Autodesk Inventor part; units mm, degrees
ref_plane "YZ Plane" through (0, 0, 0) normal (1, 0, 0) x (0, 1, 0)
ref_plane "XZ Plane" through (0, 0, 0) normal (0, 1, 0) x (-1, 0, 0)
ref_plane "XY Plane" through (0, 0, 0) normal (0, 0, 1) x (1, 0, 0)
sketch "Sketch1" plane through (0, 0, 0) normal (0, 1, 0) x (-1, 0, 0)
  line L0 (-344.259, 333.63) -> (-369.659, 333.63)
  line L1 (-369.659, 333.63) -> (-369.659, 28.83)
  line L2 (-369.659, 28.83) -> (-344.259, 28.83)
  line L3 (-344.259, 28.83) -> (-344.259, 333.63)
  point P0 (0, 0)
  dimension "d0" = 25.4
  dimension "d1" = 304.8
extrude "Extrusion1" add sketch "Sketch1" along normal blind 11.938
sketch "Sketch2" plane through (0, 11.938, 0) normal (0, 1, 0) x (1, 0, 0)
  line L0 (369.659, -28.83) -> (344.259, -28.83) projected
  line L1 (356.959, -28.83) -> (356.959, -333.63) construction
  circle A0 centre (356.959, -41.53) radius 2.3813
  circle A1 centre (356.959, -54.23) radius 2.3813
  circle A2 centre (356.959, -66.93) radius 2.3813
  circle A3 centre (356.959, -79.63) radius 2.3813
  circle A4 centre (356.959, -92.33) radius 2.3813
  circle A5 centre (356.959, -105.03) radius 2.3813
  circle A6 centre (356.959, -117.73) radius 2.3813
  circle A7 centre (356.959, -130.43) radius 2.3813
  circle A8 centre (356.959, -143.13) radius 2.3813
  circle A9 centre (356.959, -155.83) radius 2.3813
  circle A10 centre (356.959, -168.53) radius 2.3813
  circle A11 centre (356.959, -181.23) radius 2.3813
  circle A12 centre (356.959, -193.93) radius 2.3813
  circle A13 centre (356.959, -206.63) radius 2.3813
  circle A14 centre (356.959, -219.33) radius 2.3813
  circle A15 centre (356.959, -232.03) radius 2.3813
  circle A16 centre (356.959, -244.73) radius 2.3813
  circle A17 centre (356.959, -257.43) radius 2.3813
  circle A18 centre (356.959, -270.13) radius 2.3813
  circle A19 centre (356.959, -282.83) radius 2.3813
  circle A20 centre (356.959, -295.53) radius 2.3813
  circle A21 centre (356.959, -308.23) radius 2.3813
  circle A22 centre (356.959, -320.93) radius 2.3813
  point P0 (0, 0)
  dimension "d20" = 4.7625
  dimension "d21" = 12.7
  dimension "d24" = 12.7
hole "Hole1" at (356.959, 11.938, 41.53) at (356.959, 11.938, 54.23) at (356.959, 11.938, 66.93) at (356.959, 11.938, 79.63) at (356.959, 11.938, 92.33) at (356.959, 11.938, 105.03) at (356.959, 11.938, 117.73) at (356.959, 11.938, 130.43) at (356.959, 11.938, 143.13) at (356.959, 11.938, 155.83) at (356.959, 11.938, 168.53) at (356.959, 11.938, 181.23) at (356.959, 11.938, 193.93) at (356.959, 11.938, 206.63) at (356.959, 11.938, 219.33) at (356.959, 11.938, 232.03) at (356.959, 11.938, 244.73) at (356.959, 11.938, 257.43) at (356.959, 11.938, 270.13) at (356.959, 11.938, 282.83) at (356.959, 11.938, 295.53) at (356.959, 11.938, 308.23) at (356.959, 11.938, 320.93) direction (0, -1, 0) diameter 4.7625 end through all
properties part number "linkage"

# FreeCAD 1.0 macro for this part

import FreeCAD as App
import Part
import Sketcher

V = App.Vector
Q = App.Units.Quantity


def add_polygon(sketch, points):
    """Adds a closed chain of lines whose ends are joined by coincident constraints."""
    first, n = sketch.GeometryCount, len(points)
    for a, b in zip(points, points[1:] + points[:1]):
        sketch.addGeometry(Part.LineSegment(App.Vector(*a, 0), App.Vector(*b, 0)), False)
    for i in range(n):
        sketch.addConstraint(Sketcher.Constraint("Coincident", first + i, 2, first + (i + 1) % n, 1))

doc = App.newDocument("Part")
body = doc.addObject("PartDesign::Body", "Body")

# Sketch on XZ plane
sketch1 = body.newObject("Sketcher::SketchObject", "Sketch")
sketch1.AttachmentSupport = (doc.getObject("XZ_Plane"), [""])
sketch1.MapMode = "FlatFace"
add_polygon(sketch1, [(344, 29), (344, 334), (370, 334), (370, 29)])  # lines 0-3
sketch1.addConstraint(Sketcher.Constraint("Vertical", 0))
sketch1.addConstraint(Sketcher.Constraint("Horizontal", 1))
sketch1.addConstraint(Sketcher.Constraint("Vertical", 2))
sketch1.addConstraint(Sketcher.Constraint("Horizontal", 3))
sketch1.addConstraint(Sketcher.Constraint("DistanceX", 1, 1, 1, 2, Q("1 in")))
sketch1.addConstraint(Sketcher.Constraint("DistanceY", 0, 1, 0, 2, Q("12 in")))
sketch1.addConstraint(Sketcher.Constraint("DistanceX", -1, 1, 0, 2, Q("13.5535 in")))
sketch1.addConstraint(Sketcher.Constraint("DistanceY", -1, 1, 0, 2, Q("333.63 mm")))
pad1 = body.newObject("PartDesign::Pad", "Pad")
pad1.Profile = sketch1
pad1.Length = Q("0.47 in")
pad1.Reversed = True

# Sketch on XZ plane
sketch2 = body.newObject("Sketcher::SketchObject", "Sketch001")
sketch2.AttachmentSupport = (doc.getObject("XZ_Plane"), [""])
sketch2.MapMode = "FlatFace"
sketch2.AttachmentOffset = App.Placement(V(0, 0, -0.47 * 25.4), App.Rotation())
sketch2.addGeometry(Part.Circle(V(357, 41.5, 0), V(0, 0, 1), 2.4), False)
sketch2.addGeometry(Part.Circle(V(357, 54.2, 0), V(0, 0, 1), 2.4), False)
sketch2.addGeometry(Part.Circle(V(357, 66.9, 0), V(0, 0, 1), 2.4), False)
sketch2.addGeometry(Part.Circle(V(357, 79.6, 0), V(0, 0, 1), 2.4), False)
sketch2.addGeometry(Part.Circle(V(357, 92.3, 0), V(0, 0, 1), 2.4), False)
sketch2.addGeometry(Part.Circle(V(357, 105, 0), V(0, 0, 1), 2.4), False)
sketch2.addGeometry(Part.Circle(V(357, 117.7, 0), V(0, 0, 1), 2.4), False)
sketch2.addGeometry(Part.Circle(V(357, 130.4, 0), V(0, 0, 1), 2.4), False)
sketch2.addGeometry(Part.Circle(V(357, 143.1, 0), V(0, 0, 1), 2.4), False)
sketch2.addGeometry(Part.Circle(V(357, 155.8, 0), V(0, 0, 1), 2.4), False)
sketch2.addGeometry(Part.Circle(V(357, 168.5, 0), V(0, 0, 1), 2.4), False)
sketch2.addGeometry(Part.Circle(V(357, 181.2, 0), V(0, 0, 1), 2.4), False)
sketch2.addGeometry(Part.Circle(V(357, 193.9, 0), V(0, 0, 1), 2.4), False)
sketch2.addGeometry(Part.Circle(V(357, 206.6, 0), V(0, 0, 1), 2.4), False)
sketch2.addGeometry(Part.Circle(V(357, 219.3, 0), V(0, 0, 1), 2.4), False)
sketch2.addGeometry(Part.Circle(V(357, 232, 0), V(0, 0, 1), 2.4), False)
sketch2.addGeometry(Part.Circle(V(357, 244.7, 0), V(0, 0, 1), 2.4), False)
sketch2.addGeometry(Part.Circle(V(357, 257.4, 0), V(0, 0, 1), 2.4), False)
sketch2.addGeometry(Part.Circle(V(357, 270.1, 0), V(0, 0, 1), 2.4), False)
sketch2.addGeometry(Part.Circle(V(357, 282.8, 0), V(0, 0, 1), 2.4), False)
sketch2.addGeometry(Part.Circle(V(357, 295.5, 0), V(0, 0, 1), 2.4), False)
sketch2.addGeometry(Part.Circle(V(357, 308.2, 0), V(0, 0, 1), 2.4), False)
sketch2.addGeometry(Part.Circle(V(357, 320.9, 0), V(0, 0, 1), 2.4), False)
sketch2.addConstraint(Sketcher.Constraint("Equal", 0, 1))
sketch2.addConstraint(Sketcher.Constraint("Equal", 1, 2))
sketch2.addConstraint(Sketcher.Constraint("Equal", 2, 3))
sketch2.addConstraint(Sketcher.Constraint("Equal", 3, 4))
sketch2.addConstraint(Sketcher.Constraint("Equal", 4, 5))
sketch2.addConstraint(Sketcher.Constraint("Equal", 5, 6))
sketch2.addConstraint(Sketcher.Constraint("Equal", 6, 7))
sketch2.addConstraint(Sketcher.Constraint("Equal", 7, 8))
sketch2.addConstraint(Sketcher.Constraint("Equal", 8, 9))
sketch2.addConstraint(Sketcher.Constraint("Equal", 9, 10))
sketch2.addConstraint(Sketcher.Constraint("Equal", 10, 11))
sketch2.addConstraint(Sketcher.Constraint("Equal", 11, 12))
sketch2.addConstraint(Sketcher.Constraint("Equal", 12, 13))
sketch2.addConstraint(Sketcher.Constraint("Equal", 13, 14))
sketch2.addConstraint(Sketcher.Constraint("Equal", 14, 15))
sketch2.addConstraint(Sketcher.Constraint("Equal", 15, 16))
sketch2.addConstraint(Sketcher.Constraint("Equal", 16, 17))
sketch2.addConstraint(Sketcher.Constraint("Equal", 17, 18))
sketch2.addConstraint(Sketcher.Constraint("Equal", 18, 19))
sketch2.addConstraint(Sketcher.Constraint("Equal", 19, 20))
sketch2.addConstraint(Sketcher.Constraint("Equal", 20, 21))
sketch2.addConstraint(Sketcher.Constraint("Equal", 21, 22))
sketch2.addConstraint(Sketcher.Constraint("Vertical", 0, 3, 1, 3))
sketch2.addConstraint(Sketcher.Constraint("Vertical", 1, 3, 2, 3))
sketch2.addConstraint(Sketcher.Constraint("Vertical", 2, 3, 3, 3))
sketch2.addConstraint(Sketcher.Constraint("Vertical", 3, 3, 4, 3))
sketch2.addConstraint(Sketcher.Constraint("Vertical", 4, 3, 5, 3))
sketch2.addConstraint(Sketcher.Constraint("Vertical", 5, 3, 6, 3))
sketch2.addConstraint(Sketcher.Constraint("Vertical", 6, 3, 7, 3))
sketch2.addConstraint(Sketcher.Constraint("Vertical", 7, 3, 8, 3))
sketch2.addConstraint(Sketcher.Constraint("Vertical", 8, 3, 9, 3))
sketch2.addConstraint(Sketcher.Constraint("Vertical", 9, 3, 10, 3))
sketch2.addConstraint(Sketcher.Constraint("Vertical", 10, 3, 11, 3))
sketch2.addConstraint(Sketcher.Constraint("Vertical", 11, 3, 12, 3))
sketch2.addConstraint(Sketcher.Constraint("Vertical", 12, 3, 13, 3))
sketch2.addConstraint(Sketcher.Constraint("Vertical", 13, 3, 14, 3))
sketch2.addConstraint(Sketcher.Constraint("Vertical", 14, 3, 15, 3))
sketch2.addConstraint(Sketcher.Constraint("Vertical", 15, 3, 16, 3))
sketch2.addConstraint(Sketcher.Constraint("Vertical", 16, 3, 17, 3))
sketch2.addConstraint(Sketcher.Constraint("Vertical", 17, 3, 18, 3))
sketch2.addConstraint(Sketcher.Constraint("Vertical", 18, 3, 19, 3))
sketch2.addConstraint(Sketcher.Constraint("Vertical", 19, 3, 20, 3))
sketch2.addConstraint(Sketcher.Constraint("Vertical", 20, 3, 21, 3))
sketch2.addConstraint(Sketcher.Constraint("Vertical", 21, 3, 22, 3))
sketch2.addConstraint(Sketcher.Constraint("Diameter", 0, Q("0.1875 in")))
sketch2.addConstraint(Sketcher.Constraint("DistanceY", 0, 3, 2, 3, Q("1 in")))
sketch2.addConstraint(Sketcher.Constraint("DistanceY", 1, 3, 3, 3, Q("1 in")))
sketch2.addConstraint(Sketcher.Constraint("DistanceY", 2, 3, 4, 3, Q("1 in")))
sketch2.addConstraint(Sketcher.Constraint("DistanceY", 3, 3, 5, 3, Q("1 in")))
sketch2.addConstraint(Sketcher.Constraint("DistanceY", 4, 3, 6, 3, Q("1 in")))
sketch2.addConstraint(Sketcher.Constraint("DistanceY", 5, 3, 7, 3, Q("1 in")))
sketch2.addConstraint(Sketcher.Constraint("DistanceY", 6, 3, 8, 3, Q("1 in")))
sketch2.addConstraint(Sketcher.Constraint("DistanceY", 7, 3, 9, 3, Q("1 in")))
sketch2.addConstraint(Sketcher.Constraint("DistanceY", 8, 3, 10, 3, Q("1 in")))
sketch2.addConstraint(Sketcher.Constraint("DistanceY", 9, 3, 11, 3, Q("1 in")))
sketch2.addConstraint(Sketcher.Constraint("DistanceY", 10, 3, 12, 3, Q("1 in")))
sketch2.addConstraint(Sketcher.Constraint("DistanceY", 11, 3, 13, 3, Q("1 in")))
sketch2.addConstraint(Sketcher.Constraint("DistanceY", 12, 3, 14, 3, Q("1 in")))
sketch2.addConstraint(Sketcher.Constraint("DistanceY", 13, 3, 15, 3, Q("1 in")))
sketch2.addConstraint(Sketcher.Constraint("DistanceY", 14, 3, 16, 3, Q("1 in")))
sketch2.addConstraint(Sketcher.Constraint("DistanceY", 15, 3, 17, 3, Q("1 in")))
sketch2.addConstraint(Sketcher.Constraint("DistanceY", 16, 3, 18, 3, Q("1 in")))
sketch2.addConstraint(Sketcher.Constraint("DistanceY", 17, 3, 19, 3, Q("1 in")))
sketch2.addConstraint(Sketcher.Constraint("DistanceY", 18, 3, 20, 3, Q("1 in")))
sketch2.addConstraint(Sketcher.Constraint("DistanceY", 19, 3, 21, 3, Q("1 in")))
sketch2.addConstraint(Sketcher.Constraint("DistanceY", 20, 3, 22, 3, Q("1 in")))
sketch2.addConstraint(Sketcher.Constraint("DistanceY", 0, 3, 1, 3, Q("0.5 in")))
sketch2.addConstraint(Sketcher.Constraint("DistanceX", -1, 1, 0, 3, Q("14.0535 in")))
sketch2.addConstraint(Sketcher.Constraint("DistanceY", -1, 1, 0, 3, Q("41.53 mm")))
doc.recompute()
hole = body.newObject("PartDesign::Hole", "Hole")
hole.Profile = sketch2
hole.ThreadType = "None"
hole.Diameter = Q("0.1875 in")
hole.DepthType = "ThroughAll"
hole.Reversed = True

doc.recompute()
